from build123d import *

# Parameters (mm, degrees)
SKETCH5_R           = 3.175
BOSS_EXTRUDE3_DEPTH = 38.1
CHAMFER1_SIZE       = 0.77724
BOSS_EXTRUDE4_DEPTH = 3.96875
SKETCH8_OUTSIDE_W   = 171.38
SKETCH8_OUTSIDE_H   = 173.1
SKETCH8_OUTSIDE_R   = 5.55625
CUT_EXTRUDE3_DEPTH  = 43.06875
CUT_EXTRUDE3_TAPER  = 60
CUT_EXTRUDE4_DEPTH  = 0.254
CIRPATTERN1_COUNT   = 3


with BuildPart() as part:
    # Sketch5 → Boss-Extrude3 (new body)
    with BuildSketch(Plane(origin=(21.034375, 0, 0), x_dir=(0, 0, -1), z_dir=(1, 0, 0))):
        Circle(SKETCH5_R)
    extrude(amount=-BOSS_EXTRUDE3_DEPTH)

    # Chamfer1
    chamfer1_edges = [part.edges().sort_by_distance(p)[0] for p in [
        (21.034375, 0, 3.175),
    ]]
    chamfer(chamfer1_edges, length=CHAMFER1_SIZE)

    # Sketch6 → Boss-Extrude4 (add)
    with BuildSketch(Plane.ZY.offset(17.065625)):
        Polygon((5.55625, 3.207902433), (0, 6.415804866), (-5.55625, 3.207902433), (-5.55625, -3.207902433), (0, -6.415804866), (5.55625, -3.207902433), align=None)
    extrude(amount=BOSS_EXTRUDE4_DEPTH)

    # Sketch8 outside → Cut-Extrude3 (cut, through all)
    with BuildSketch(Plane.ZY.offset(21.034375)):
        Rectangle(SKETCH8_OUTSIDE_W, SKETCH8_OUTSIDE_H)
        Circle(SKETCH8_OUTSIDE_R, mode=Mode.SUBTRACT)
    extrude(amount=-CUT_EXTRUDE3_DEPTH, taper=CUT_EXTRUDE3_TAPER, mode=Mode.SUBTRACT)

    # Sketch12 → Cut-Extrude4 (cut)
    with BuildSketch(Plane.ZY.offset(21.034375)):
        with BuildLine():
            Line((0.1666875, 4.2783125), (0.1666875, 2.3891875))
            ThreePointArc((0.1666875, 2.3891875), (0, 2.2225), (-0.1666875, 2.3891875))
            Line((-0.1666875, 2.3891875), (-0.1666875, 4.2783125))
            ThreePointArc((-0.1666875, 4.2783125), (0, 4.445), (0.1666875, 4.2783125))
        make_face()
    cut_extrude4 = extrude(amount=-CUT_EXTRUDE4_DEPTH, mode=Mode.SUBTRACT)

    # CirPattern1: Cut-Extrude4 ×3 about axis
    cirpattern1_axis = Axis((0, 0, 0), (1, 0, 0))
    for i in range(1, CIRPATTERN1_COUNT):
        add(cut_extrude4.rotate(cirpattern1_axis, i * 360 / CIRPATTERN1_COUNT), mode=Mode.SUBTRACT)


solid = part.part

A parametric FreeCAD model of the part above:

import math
import FreeCAD as App
import Part
import Sketcher
from FreeCAD import Vector
Q = App.Units.Quantity


def edges_at(feature, points):
    """Names of the edges that pass closest to the given points."""
    edges = feature.Shape.Edges
    near = lambda p: min(range(len(edges)), key=lambda i: edges[i].distToShape(Part.Vertex(*p))[0])
    return sorted({f"Edge{near(p) + 1}" for p in points})

doc = App.newDocument("Part")
body = doc.addObject("PartDesign::Body", "Body")

# Sketch on YZ plane
sketch1 = body.newObject("Sketcher::SketchObject", "Sketch")
sketch1.AttachmentSupport = (doc.getObject("YZ_Plane"), [""])
sketch1.MapMode = "FlatFace"
sketch1.AttachmentOffset = App.Placement(Vector(0, 0, 0.828125 * 25.4), App.Rotation())
sketch1.addGeometry(Part.Circle(Vector(0, 0, 0), Vector(0, 0, 1), 3.2), False)
sketch1.addConstraint(Sketcher.Constraint("Coincident", 0, 3, -1, 1))
sketch1.addConstraint(Sketcher.Constraint("Diameter", 0, Q("0.25 in")))
pad1 = body.newObject("PartDesign::Pad", "Pad")
pad1.Profile = sketch1
pad1.Length = Q("1.5 in")
pad1.Reversed = True
doc.recompute()

chamfer = body.newObject("PartDesign::Chamfer", "Chamfer")
chamfer.Base = (pad1, edges_at(pad1, [(21.034, 0, 3.175)]))
chamfer.Size = Q("0.0306 in")

# Sketch on YZ plane
sketch2 = body.newObject("Sketcher::SketchObject", "Sketch001")
sketch2.AttachmentSupport = (doc.getObject("YZ_Plane"), [""])
sketch2.MapMode = "FlatFace"
sketch2.AttachmentOffset = App.Placement(Vector(0, 0, -0.671875 * 25.4), App.Rotation())
sketch2.addGeometry(Part.LineSegment(Vector(3, 6, 0), Vector(6, 0, 0)), False)
sketch2.addGeometry(Part.LineSegment(Vector(6, 0, 0), Vector(3, -6, 0)), False)
sketch2.addGeometry(Part.LineSegment(Vector(3, -6, 0), Vector(-3, -6, 0)), False)
sketch2.addGeometry(Part.LineSegment(Vector(-3, -6, 0), Vector(-6, 0, 0)), False)
sketch2.addGeometry(Part.LineSegment(Vector(-6, 0, 0), Vector(-3, 6, 0)), False)
sketch2.addGeometry(Part.LineSegment(Vector(-3, 6, 0), Vector(3, 6, 0)), False)
sketch2.addConstraint(Sketcher.Constraint("Coincident", 0, 2, 1, 1))
sketch2.addConstraint(Sketcher.Constraint("Coincident", 1, 2, 2, 1))
sketch2.addConstraint(Sketcher.Constraint("Coincident", 2, 2, 3, 1))
sketch2.addConstraint(Sketcher.Constraint("Coincident", 3, 2, 4, 1))
sketch2.addConstraint(Sketcher.Constraint("Coincident", 4, 2, 5, 1))
sketch2.addConstraint(Sketcher.Constraint("Coincident", 5, 2, 0, 1))
sketch2.addConstraint(Sketcher.Constraint("Horizontal", 2))
sketch2.addConstraint(Sketcher.Constraint("Horizontal", 5))
sketch2.addConstraint(Sketcher.Constraint("Symmetric", 0, 2, 3, 2, -1, 1))
sketch2.addConstraint(Sketcher.Constraint("Symmetric", 1, 2, 4, 2, -1, 1))
sketch2.addConstraint(Sketcher.Constraint("PointOnObject", 0, 2, -1))
sketch2.addConstraint(Sketcher.Constraint("Parallel", 0, 3))
sketch2.addConstraint(Sketcher.Constraint("Vertical", 2, 2, 4, 2))
sketch2.addConstraint(Sketcher.Constraint("Angle", 0, Q("-60 deg")))
sketch2.addConstraint(Sketcher.Constraint("DistanceY", 1, 2, -1, 1, Q("0.21875 in")))
sketch2.addConstraint(Sketcher.Constraint("DistanceX", 2, 2, 2, 1, 6.415805))
pad2 = body.newObject("PartDesign::Pad", "Pad001")
pad2.Profile = sketch2
pad2.Length = Q("0.15625 in")
pad2.Reversed = True

# Sketch on YZ plane
sketch3 = body.newObject("Sketcher::SketchObject", "Sketch002")
sketch3.AttachmentSupport = (doc.getObject("YZ_Plane"), [""])
sketch3.MapMode = "FlatFace"
sketch3.AttachmentOffset = App.Placement(Vector(0, 0, -0.828125 * 25.4), App.Rotation())
sketch3.addGeometry(Part.LineSegment(Vector(87, -86, 0), Vector(-87, -86, 0)), False)
sketch3.addGeometry(Part.LineSegment(Vector(-87, -86, 0), Vector(-87, 86, 0)), False)
sketch3.addGeometry(Part.LineSegment(Vector(-87, 86, 0), Vector(87, 86, 0)), False)
sketch3.addGeometry(Part.LineSegment(Vector(87, 86, 0), Vector(87, -86, 0)), False)
sketch3.addGeometry(Part.Circle(Vector(0, 0, 0), Vector(0, 0, 1), 6), False)
sketch3.addConstraint(Sketcher.Constraint("Coincident", 0, 2, 1, 1))
sketch3.addConstraint(Sketcher.Constraint("Coincident", 1, 2, 2, 1))
sketch3.addConstraint(Sketcher.Constraint("Coincident", 2, 2, 3, 1))
sketch3.addConstraint(Sketcher.Constraint("Coincident", 3, 2, 0, 1))
sketch3.addConstraint(Sketcher.Constraint("Horizontal", 0))
sketch3.addConstraint(Sketcher.Constraint("Vertical", 1))
sketch3.addConstraint(Sketcher.Constraint("Horizontal", 2))
sketch3.addConstraint(Sketcher.Constraint("Vertical", 3))
sketch3.addConstraint(Sketcher.Constraint("Coincident", 4, 3, -1, 1))
sketch3.addConstraint(Sketcher.Constraint("Symmetric", 0, 2, 2, 2, -1, 1))
sketch3.addConstraint(Sketcher.Constraint("Diameter", 4, Q("0.4375 in")))
sketch3.addConstraint(Sketcher.Constraint("DistanceX", 0, 2, 0, 1, 173.1))
sketch3.addConstraint(Sketcher.Constraint("DistanceY", 1, 1, 1, 2, 171.38))
pocket1 = body.newObject("PartDesign::Pocket", "Pocket")
pocket1.Profile = sketch3
pocket1.Length = 43.06875
pocket1.Reversed = True
pocket1.TaperAngle = 60

# Sketch on YZ plane
sketch4 = body.newObject("Sketcher::SketchObject", "Sketch003")
sketch4.AttachmentSupport = (doc.getObject("YZ_Plane"), [""])
sketch4.MapMode = "FlatFace"
sketch4.AttachmentOffset = App.Placement(Vector(0, 0, -0.828125 * 25.4), App.Rotation())
sketch4.addGeometry(Part.LineSegment(Vector(2.39, 0.17, 0), Vector(4.28, 0.17, 0)), False)
sketch4.addGeometry(Part.ArcOfCircle(Part.Circle(Vector(4.28, 0, 0), Vector(0, 0, 1), 0.17), math.radians(-90), math.radians(90)), False)
sketch4.addGeometry(Part.LineSegment(Vector(4.28, -0.17, 0), Vector(2.39, -0.17, 0)), False)
sketch4.addGeometry(Part.ArcOfCircle(Part.Circle(Vector(2.39, 0, 0), Vector(0, 0, 1), 0.17), math.radians(90), math.radians(270)), False)
sketch4.addConstraint(Sketcher.Constraint("Tangent", 0, 2, 1, 2))
sketch4.addConstraint(Sketcher.Constraint("Tangent", 1, 1, 2, 1))
sketch4.addConstraint(Sketcher.Constraint("Tangent", 2, 2, 3, 2))
sketch4.addConstraint(Sketcher.Constraint("Tangent", 3, 1, 0, 1))
sketch4.addConstraint(Sketcher.Constraint("Horizontal", 0))
sketch4.addConstraint(Sketcher.Constraint("Horizontal", 2))
sketch4.addConstraint(Sketcher.Constraint("PointOnObject", 1, 3, -1))
sketch4.addConstraint(Sketcher.Constraint("Radius", 1, 0.166687))
sketch4.addConstraint(Sketcher.Constraint("DistanceX", 0, 1, 0, 2, 1.889125))
sketch4.addConstraint(Sketcher.Constraint("DistanceX", -1, 1, 1, 3, 4.278313))
pocket2 = body.newObject("PartDesign::Pocket", "Pocket001")
pocket2.Profile = sketch4
pocket2.Length = Q("0.01 in")
pocket2.Reversed = True
doc.recompute()

polarpattern = body.newObject("PartDesign::PolarPattern", "PolarPattern")
polarpattern.Originals = [pocket2]
polarpattern.Axis = (doc.getObject("X_Axis"), [""])
polarpattern.Angle = 360
polarpattern.Occurrences = 3
body.Tip = polarpattern

doc.recompute()
